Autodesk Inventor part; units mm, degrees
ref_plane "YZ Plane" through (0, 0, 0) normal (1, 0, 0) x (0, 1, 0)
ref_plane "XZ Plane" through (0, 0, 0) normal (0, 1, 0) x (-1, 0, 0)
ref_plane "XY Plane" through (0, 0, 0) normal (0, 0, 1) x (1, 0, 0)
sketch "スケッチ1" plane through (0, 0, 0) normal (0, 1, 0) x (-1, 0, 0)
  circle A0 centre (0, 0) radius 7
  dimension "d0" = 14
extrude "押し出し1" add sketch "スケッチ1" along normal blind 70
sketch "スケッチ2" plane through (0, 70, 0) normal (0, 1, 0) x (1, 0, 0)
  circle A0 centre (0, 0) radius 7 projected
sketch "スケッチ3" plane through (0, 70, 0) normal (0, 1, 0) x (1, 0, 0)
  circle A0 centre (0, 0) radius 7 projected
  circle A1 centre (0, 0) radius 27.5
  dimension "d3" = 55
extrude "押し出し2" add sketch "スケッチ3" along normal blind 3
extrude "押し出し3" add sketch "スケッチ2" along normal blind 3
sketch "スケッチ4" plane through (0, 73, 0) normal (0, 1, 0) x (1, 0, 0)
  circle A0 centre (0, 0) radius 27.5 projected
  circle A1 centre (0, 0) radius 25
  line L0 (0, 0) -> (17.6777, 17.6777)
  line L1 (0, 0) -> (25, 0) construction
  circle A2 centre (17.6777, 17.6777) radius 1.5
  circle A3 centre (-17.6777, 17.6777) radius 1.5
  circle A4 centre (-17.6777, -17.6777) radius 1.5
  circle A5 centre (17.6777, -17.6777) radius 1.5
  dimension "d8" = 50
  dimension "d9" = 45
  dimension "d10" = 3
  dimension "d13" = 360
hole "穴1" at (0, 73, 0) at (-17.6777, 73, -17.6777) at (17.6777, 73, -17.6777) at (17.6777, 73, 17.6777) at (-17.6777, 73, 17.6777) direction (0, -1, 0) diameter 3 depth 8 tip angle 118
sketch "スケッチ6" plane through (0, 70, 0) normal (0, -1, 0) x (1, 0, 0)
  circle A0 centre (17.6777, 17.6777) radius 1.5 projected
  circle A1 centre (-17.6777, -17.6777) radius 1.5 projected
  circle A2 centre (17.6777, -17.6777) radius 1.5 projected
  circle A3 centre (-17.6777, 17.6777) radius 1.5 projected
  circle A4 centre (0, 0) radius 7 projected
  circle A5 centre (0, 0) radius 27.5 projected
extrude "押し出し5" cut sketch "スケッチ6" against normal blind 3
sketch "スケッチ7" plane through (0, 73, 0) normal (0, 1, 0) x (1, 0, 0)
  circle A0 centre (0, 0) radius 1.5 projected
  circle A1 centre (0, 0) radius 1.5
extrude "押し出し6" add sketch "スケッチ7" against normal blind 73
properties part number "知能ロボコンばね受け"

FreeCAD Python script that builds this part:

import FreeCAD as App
import Part
import Sketcher

doc = App.newDocument("Part")
body = doc.addObject("PartDesign::Body", "Body")
body.AllowCompound = True

# Sketch on XZ plane
sketch1 = body.newObject("Sketcher::SketchObject", "Sketch")
sketch1.AttachmentSupport = (doc.getObject("XZ_Plane"), [""])
sketch1.MapMode = "FlatFace"
sketch1.addGeometry(Part.Circle(App.Vector(0, 0, 0), App.Vector(0, 0, 1), 7), False)
sketch1.addConstraint(Sketcher.Constraint("Coincident", 0, 3, -1, 1))
sketch1.addConstraint(Sketcher.Constraint("Diameter", 0, 14.0))
pad1 = body.newObject("PartDesign::Pad", "Pad")
pad1.Profile = sketch1
pad1.Length = 70
pad1.Reversed = True

# Sketch on XZ plane
sketch2 = body.newObject("Sketcher::SketchObject", "Sketch001")
sketch2.AttachmentSupport = (doc.getObject("XZ_Plane"), [""])
sketch2.MapMode = "FlatFace"
sketch2.AttachmentOffset = App.Placement(App.Vector(0, 0, -70), App.Rotation())
sketch2.addGeometry(Part.Circle(App.Vector(0, 0, 0), App.Vector(0, 0, 1), 28), False)
sketch2.addGeometry(Part.Circle(App.Vector(0, 0, 0), App.Vector(0, 0, 1), 7), False)
sketch2.addConstraint(Sketcher.Constraint("Coincident", 0, 3, -1, 1))
sketch2.addConstraint(Sketcher.Constraint("Coincident", 1, 3, -1, 1))
sketch2.addConstraint(Sketcher.Constraint("Diameter", 0, 55.0))
sketch2.addConstraint(Sketcher.Constraint("Diameter", 1, 14.0))
pad2 = body.newObject("PartDesign::Pad", "Pad001")
pad2.Profile = sketch2
pad2.Length = 3
pad2.Reversed = True

# Sketch on XZ plane
sketch3 = body.newObject("Sketcher::SketchObject", "Sketch002")
sketch3.AttachmentSupport = (doc.getObject("XZ_Plane"), [""])
sketch3.MapMode = "FlatFace"
sketch3.AttachmentOffset = App.Placement(App.Vector(0, 0, -70), App.Rotation())
sketch3.addGeometry(Part.Circle(App.Vector(0, 0, 0), App.Vector(0, 0, 1), 7), False)
sketch3.addConstraint(Sketcher.Constraint("Coincident", 0, 3, -1, 1))
sketch3.addConstraint(Sketcher.Constraint("Diameter", 0, 14.0))
pad3 = body.newObject("PartDesign::Pad", "Pad002")
pad3.Profile = sketch3
pad3.Length = 3
pad3.Reversed = True

# Sketch on XZ plane
sketch4 = body.newObject("Sketcher::SketchObject", "Sketch003")
sketch4.AttachmentSupport = (doc.getObject("XZ_Plane"), [""])
sketch4.MapMode = "FlatFace"
sketch4.AttachmentOffset = App.Placement(App.Vector(0, 0, -73), App.Rotation())
sketch4.addGeometry(Part.Circle(App.Vector(0, 0, 0), App.Vector(0, 0, 1), 1.5), False)
sketch4.addGeometry(Part.Circle(App.Vector(-17.7, -17.7, 0), App.Vector(0, 0, 1), 1.5), False)
sketch4.addGeometry(Part.Circle(App.Vector(17.7, -17.7, 0), App.Vector(0, 0, 1), 1.5), False)
sketch4.addGeometry(Part.Circle(App.Vector(17.7, 17.7, 0), App.Vector(0, 0, 1), 1.5), False)
sketch4.addGeometry(Part.Circle(App.Vector(-17.7, 17.7, 0), App.Vector(0, 0, 1), 1.5), False)
sketch4.addConstraint(Sketcher.Constraint("Coincident", 0, 3, -1, 1))
sketch4.addConstraint(Sketcher.Constraint("Equal", 0, 1))
sketch4.addConstraint(Sketcher.Constraint("Equal", 1, 2))
sketch4.addConstraint(Sketcher.Constraint("Equal", 2, 3))
sketch4.addConstraint(Sketcher.Constraint("Equal", 3, 4))
sketch4.addConstraint(Sketcher.Constraint("Symmetric", 1, 3, 3, 3, -1, 1))
sketch4.addConstraint(Sketcher.Constraint("Symmetric", 2, 3, 4, 3, -1, 1))
sketch4.addConstraint(Sketcher.Constraint("Symmetric", 1, 3, 2, 3, -2))
sketch4.addConstraint(Sketcher.Constraint("Diameter", 0, 3.0))
sketch4.addConstraint(Sketcher.Constraint("DistanceX", 1, 3, -1, 1, 17.6777))
sketch4.addConstraint(Sketcher.Constraint("DistanceY", 1, 3, -1, 1, 17.6777))
doc.recompute()
hole = body.newObject("PartDesign::Hole", "Hole")
hole.Profile = sketch4
hole.ThreadType = "None"
hole.Diameter = 3
hole.DepthType = "Dimension"
hole.Depth = 8
hole.DrillPoint = "Angled"
hole.DrillPointAngle = 118
hole.Reversed = True

# Sketch on XZ plane
sketch5 = body.newObject("Sketcher::SketchObject", "Sketch004")
sketch5.AttachmentSupport = (doc.getObject("XZ_Plane"), [""])
sketch5.MapMode = "FlatFace"
sketch5.AttachmentOffset = App.Placement(App.Vector(0, 0, -70), App.Rotation())
sketch5.addGeometry(Part.Circle(App.Vector(0, 0, 0), App.Vector(0, 0, 1), 27.5), False)
sketch5.addGeometry(Part.Circle(App.Vector(-17.7, -17.7, 0), App.Vector(0, 0, 1), 1.5), False)
sketch5.addGeometry(Part.Circle(App.Vector(17.7, -17.7, 0), App.Vector(0, 0, 1), 1.5), False)
sketch5.addGeometry(Part.Circle(App.Vector(-17.7, 17.7, 0), App.Vector(0, 0, 1), 1.5), False)
sketch5.addGeometry(Part.Circle(App.Vector(0, 0, 0), App.Vector(0, 0, 1), 7), False)
sketch5.addGeometry(Part.Circle(App.Vector(17.7, 17.7, 0), App.Vector(0, 0, 1), 1.5), False)
sketch5.addConstraint(Sketcher.Constraint("Coincident", 0, 3, -1, 1))
sketch5.addConstraint(Sketcher.Constraint("Coincident", 4, 3, -1, 1))
sketch5.addConstraint(Sketcher.Constraint("Equal", 1, 2))
sketch5.addConstraint(Sketcher.Constraint("Equal", 2, 3))
sketch5.addConstraint(Sketcher.Constraint("Equal", 3, 5))
sketch5.addConstraint(Sketcher.Constraint("Symmetric", 2, 3, 3, 3, -1, 1))
sketch5.addConstraint(Sketcher.Constraint("Symmetric", 1, 3, 5, 3, -1, 1))
sketch5.addConstraint(Sketcher.Constraint("Symmetric", 1, 3, 2, 3, -2))
sketch5.addConstraint(Sketcher.Constraint("Diameter", 0, 55.0))
sketch5.addConstraint(Sketcher.Constraint("Diameter", 1, 3.0))
sketch5.addConstraint(Sketcher.Constraint("Diameter", 4, 14.0))
sketch5.addConstraint(Sketcher.Constraint("DistanceX", 1, 3, -1, 1, 17.6777))
sketch5.addConstraint(Sketcher.Constraint("DistanceY", 1, 3, -1, 1, 17.6777))
pocket1 = body.newObject("PartDesign::Pocket", "Pocket")
pocket1.Profile = sketch5
pocket1.Length = 3

# Sketch on XZ plane
sketch6 = body.newObject("Sketcher::SketchObject", "Sketch005")
sketch6.AttachmentSupport = (doc.getObject("XZ_Plane"), [""])
sketch6.MapMode = "FlatFace"
sketch6.AttachmentOffset = App.Placement(App.Vector(0, 0, -73), App.Rotation())
sketch6.addGeometry(Part.Circle(App.Vector(0, 0, 0), App.Vector(0, 0, 1), 1.5), False)
sketch6.addConstraint(Sketcher.Constraint("Coincident", 0, 3, -1, 1))
sketch6.addConstraint(Sketcher.Constraint("Diameter", 0, 3.0))
pad4 = body.newObject("PartDesign::Pad", "Pad003")
pad4.Profile = sketch6
pad4.Length = 73

doc.recompute()
